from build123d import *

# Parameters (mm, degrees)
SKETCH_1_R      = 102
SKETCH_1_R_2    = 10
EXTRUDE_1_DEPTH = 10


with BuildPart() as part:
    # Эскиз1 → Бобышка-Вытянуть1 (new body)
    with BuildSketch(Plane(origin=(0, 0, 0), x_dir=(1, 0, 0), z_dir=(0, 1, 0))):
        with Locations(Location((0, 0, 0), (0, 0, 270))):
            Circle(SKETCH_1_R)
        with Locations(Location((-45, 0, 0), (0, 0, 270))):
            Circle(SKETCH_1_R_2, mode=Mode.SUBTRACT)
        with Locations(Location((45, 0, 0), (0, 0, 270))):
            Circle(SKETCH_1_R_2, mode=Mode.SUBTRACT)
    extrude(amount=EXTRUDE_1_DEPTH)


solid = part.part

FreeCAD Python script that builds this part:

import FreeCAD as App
import Part
import Sketcher

V = App.Vector

doc = App.newDocument("Part")
body = doc.addObject("PartDesign::Body", "Body")

# Sketch on XZ plane
sketch1 = doc.addObject("Sketcher::SketchObject", "Sketch")
body.addObject(sketch1)
sketch1.AttachmentSupport = (doc.XZ_Plane, [""])
sketch1.MapMode = "FlatFace"
sketch1.addGeometry([
    Part.Circle(V(0, 0, 0), V(0, 0, 1), 102),
    Part.Circle(V(-45, 0, 0), V(0, 0, 1), 10),
    Part.Circle(V(45, 0, 0), V(0, 0, 1), 10),
], False)
sketch1.addConstraint([
    Sketcher.Constraint("Coincident", 0, 3, -1, 1),
    Sketcher.Constraint("Equal", 1, 2),
    Sketcher.Constraint("Symmetric", 1, 3, 2, 3, -1, 1),
    Sketcher.Constraint("PointOnObject", 1, 3, -1),
    Sketcher.Constraint("Diameter", 0, 204.0),
    Sketcher.Constraint("Diameter", 1, 20.0),
    Sketcher.Constraint("DistanceX", 1, 3, -1, 1, 45.0),
])
pad1 = doc.addObject("PartDesign::Pad", "Pad")
body.addObject(pad1)
pad1.Profile = sketch1
pad1.Length = 10
pad1.Reversed = True

doc.recompute()
